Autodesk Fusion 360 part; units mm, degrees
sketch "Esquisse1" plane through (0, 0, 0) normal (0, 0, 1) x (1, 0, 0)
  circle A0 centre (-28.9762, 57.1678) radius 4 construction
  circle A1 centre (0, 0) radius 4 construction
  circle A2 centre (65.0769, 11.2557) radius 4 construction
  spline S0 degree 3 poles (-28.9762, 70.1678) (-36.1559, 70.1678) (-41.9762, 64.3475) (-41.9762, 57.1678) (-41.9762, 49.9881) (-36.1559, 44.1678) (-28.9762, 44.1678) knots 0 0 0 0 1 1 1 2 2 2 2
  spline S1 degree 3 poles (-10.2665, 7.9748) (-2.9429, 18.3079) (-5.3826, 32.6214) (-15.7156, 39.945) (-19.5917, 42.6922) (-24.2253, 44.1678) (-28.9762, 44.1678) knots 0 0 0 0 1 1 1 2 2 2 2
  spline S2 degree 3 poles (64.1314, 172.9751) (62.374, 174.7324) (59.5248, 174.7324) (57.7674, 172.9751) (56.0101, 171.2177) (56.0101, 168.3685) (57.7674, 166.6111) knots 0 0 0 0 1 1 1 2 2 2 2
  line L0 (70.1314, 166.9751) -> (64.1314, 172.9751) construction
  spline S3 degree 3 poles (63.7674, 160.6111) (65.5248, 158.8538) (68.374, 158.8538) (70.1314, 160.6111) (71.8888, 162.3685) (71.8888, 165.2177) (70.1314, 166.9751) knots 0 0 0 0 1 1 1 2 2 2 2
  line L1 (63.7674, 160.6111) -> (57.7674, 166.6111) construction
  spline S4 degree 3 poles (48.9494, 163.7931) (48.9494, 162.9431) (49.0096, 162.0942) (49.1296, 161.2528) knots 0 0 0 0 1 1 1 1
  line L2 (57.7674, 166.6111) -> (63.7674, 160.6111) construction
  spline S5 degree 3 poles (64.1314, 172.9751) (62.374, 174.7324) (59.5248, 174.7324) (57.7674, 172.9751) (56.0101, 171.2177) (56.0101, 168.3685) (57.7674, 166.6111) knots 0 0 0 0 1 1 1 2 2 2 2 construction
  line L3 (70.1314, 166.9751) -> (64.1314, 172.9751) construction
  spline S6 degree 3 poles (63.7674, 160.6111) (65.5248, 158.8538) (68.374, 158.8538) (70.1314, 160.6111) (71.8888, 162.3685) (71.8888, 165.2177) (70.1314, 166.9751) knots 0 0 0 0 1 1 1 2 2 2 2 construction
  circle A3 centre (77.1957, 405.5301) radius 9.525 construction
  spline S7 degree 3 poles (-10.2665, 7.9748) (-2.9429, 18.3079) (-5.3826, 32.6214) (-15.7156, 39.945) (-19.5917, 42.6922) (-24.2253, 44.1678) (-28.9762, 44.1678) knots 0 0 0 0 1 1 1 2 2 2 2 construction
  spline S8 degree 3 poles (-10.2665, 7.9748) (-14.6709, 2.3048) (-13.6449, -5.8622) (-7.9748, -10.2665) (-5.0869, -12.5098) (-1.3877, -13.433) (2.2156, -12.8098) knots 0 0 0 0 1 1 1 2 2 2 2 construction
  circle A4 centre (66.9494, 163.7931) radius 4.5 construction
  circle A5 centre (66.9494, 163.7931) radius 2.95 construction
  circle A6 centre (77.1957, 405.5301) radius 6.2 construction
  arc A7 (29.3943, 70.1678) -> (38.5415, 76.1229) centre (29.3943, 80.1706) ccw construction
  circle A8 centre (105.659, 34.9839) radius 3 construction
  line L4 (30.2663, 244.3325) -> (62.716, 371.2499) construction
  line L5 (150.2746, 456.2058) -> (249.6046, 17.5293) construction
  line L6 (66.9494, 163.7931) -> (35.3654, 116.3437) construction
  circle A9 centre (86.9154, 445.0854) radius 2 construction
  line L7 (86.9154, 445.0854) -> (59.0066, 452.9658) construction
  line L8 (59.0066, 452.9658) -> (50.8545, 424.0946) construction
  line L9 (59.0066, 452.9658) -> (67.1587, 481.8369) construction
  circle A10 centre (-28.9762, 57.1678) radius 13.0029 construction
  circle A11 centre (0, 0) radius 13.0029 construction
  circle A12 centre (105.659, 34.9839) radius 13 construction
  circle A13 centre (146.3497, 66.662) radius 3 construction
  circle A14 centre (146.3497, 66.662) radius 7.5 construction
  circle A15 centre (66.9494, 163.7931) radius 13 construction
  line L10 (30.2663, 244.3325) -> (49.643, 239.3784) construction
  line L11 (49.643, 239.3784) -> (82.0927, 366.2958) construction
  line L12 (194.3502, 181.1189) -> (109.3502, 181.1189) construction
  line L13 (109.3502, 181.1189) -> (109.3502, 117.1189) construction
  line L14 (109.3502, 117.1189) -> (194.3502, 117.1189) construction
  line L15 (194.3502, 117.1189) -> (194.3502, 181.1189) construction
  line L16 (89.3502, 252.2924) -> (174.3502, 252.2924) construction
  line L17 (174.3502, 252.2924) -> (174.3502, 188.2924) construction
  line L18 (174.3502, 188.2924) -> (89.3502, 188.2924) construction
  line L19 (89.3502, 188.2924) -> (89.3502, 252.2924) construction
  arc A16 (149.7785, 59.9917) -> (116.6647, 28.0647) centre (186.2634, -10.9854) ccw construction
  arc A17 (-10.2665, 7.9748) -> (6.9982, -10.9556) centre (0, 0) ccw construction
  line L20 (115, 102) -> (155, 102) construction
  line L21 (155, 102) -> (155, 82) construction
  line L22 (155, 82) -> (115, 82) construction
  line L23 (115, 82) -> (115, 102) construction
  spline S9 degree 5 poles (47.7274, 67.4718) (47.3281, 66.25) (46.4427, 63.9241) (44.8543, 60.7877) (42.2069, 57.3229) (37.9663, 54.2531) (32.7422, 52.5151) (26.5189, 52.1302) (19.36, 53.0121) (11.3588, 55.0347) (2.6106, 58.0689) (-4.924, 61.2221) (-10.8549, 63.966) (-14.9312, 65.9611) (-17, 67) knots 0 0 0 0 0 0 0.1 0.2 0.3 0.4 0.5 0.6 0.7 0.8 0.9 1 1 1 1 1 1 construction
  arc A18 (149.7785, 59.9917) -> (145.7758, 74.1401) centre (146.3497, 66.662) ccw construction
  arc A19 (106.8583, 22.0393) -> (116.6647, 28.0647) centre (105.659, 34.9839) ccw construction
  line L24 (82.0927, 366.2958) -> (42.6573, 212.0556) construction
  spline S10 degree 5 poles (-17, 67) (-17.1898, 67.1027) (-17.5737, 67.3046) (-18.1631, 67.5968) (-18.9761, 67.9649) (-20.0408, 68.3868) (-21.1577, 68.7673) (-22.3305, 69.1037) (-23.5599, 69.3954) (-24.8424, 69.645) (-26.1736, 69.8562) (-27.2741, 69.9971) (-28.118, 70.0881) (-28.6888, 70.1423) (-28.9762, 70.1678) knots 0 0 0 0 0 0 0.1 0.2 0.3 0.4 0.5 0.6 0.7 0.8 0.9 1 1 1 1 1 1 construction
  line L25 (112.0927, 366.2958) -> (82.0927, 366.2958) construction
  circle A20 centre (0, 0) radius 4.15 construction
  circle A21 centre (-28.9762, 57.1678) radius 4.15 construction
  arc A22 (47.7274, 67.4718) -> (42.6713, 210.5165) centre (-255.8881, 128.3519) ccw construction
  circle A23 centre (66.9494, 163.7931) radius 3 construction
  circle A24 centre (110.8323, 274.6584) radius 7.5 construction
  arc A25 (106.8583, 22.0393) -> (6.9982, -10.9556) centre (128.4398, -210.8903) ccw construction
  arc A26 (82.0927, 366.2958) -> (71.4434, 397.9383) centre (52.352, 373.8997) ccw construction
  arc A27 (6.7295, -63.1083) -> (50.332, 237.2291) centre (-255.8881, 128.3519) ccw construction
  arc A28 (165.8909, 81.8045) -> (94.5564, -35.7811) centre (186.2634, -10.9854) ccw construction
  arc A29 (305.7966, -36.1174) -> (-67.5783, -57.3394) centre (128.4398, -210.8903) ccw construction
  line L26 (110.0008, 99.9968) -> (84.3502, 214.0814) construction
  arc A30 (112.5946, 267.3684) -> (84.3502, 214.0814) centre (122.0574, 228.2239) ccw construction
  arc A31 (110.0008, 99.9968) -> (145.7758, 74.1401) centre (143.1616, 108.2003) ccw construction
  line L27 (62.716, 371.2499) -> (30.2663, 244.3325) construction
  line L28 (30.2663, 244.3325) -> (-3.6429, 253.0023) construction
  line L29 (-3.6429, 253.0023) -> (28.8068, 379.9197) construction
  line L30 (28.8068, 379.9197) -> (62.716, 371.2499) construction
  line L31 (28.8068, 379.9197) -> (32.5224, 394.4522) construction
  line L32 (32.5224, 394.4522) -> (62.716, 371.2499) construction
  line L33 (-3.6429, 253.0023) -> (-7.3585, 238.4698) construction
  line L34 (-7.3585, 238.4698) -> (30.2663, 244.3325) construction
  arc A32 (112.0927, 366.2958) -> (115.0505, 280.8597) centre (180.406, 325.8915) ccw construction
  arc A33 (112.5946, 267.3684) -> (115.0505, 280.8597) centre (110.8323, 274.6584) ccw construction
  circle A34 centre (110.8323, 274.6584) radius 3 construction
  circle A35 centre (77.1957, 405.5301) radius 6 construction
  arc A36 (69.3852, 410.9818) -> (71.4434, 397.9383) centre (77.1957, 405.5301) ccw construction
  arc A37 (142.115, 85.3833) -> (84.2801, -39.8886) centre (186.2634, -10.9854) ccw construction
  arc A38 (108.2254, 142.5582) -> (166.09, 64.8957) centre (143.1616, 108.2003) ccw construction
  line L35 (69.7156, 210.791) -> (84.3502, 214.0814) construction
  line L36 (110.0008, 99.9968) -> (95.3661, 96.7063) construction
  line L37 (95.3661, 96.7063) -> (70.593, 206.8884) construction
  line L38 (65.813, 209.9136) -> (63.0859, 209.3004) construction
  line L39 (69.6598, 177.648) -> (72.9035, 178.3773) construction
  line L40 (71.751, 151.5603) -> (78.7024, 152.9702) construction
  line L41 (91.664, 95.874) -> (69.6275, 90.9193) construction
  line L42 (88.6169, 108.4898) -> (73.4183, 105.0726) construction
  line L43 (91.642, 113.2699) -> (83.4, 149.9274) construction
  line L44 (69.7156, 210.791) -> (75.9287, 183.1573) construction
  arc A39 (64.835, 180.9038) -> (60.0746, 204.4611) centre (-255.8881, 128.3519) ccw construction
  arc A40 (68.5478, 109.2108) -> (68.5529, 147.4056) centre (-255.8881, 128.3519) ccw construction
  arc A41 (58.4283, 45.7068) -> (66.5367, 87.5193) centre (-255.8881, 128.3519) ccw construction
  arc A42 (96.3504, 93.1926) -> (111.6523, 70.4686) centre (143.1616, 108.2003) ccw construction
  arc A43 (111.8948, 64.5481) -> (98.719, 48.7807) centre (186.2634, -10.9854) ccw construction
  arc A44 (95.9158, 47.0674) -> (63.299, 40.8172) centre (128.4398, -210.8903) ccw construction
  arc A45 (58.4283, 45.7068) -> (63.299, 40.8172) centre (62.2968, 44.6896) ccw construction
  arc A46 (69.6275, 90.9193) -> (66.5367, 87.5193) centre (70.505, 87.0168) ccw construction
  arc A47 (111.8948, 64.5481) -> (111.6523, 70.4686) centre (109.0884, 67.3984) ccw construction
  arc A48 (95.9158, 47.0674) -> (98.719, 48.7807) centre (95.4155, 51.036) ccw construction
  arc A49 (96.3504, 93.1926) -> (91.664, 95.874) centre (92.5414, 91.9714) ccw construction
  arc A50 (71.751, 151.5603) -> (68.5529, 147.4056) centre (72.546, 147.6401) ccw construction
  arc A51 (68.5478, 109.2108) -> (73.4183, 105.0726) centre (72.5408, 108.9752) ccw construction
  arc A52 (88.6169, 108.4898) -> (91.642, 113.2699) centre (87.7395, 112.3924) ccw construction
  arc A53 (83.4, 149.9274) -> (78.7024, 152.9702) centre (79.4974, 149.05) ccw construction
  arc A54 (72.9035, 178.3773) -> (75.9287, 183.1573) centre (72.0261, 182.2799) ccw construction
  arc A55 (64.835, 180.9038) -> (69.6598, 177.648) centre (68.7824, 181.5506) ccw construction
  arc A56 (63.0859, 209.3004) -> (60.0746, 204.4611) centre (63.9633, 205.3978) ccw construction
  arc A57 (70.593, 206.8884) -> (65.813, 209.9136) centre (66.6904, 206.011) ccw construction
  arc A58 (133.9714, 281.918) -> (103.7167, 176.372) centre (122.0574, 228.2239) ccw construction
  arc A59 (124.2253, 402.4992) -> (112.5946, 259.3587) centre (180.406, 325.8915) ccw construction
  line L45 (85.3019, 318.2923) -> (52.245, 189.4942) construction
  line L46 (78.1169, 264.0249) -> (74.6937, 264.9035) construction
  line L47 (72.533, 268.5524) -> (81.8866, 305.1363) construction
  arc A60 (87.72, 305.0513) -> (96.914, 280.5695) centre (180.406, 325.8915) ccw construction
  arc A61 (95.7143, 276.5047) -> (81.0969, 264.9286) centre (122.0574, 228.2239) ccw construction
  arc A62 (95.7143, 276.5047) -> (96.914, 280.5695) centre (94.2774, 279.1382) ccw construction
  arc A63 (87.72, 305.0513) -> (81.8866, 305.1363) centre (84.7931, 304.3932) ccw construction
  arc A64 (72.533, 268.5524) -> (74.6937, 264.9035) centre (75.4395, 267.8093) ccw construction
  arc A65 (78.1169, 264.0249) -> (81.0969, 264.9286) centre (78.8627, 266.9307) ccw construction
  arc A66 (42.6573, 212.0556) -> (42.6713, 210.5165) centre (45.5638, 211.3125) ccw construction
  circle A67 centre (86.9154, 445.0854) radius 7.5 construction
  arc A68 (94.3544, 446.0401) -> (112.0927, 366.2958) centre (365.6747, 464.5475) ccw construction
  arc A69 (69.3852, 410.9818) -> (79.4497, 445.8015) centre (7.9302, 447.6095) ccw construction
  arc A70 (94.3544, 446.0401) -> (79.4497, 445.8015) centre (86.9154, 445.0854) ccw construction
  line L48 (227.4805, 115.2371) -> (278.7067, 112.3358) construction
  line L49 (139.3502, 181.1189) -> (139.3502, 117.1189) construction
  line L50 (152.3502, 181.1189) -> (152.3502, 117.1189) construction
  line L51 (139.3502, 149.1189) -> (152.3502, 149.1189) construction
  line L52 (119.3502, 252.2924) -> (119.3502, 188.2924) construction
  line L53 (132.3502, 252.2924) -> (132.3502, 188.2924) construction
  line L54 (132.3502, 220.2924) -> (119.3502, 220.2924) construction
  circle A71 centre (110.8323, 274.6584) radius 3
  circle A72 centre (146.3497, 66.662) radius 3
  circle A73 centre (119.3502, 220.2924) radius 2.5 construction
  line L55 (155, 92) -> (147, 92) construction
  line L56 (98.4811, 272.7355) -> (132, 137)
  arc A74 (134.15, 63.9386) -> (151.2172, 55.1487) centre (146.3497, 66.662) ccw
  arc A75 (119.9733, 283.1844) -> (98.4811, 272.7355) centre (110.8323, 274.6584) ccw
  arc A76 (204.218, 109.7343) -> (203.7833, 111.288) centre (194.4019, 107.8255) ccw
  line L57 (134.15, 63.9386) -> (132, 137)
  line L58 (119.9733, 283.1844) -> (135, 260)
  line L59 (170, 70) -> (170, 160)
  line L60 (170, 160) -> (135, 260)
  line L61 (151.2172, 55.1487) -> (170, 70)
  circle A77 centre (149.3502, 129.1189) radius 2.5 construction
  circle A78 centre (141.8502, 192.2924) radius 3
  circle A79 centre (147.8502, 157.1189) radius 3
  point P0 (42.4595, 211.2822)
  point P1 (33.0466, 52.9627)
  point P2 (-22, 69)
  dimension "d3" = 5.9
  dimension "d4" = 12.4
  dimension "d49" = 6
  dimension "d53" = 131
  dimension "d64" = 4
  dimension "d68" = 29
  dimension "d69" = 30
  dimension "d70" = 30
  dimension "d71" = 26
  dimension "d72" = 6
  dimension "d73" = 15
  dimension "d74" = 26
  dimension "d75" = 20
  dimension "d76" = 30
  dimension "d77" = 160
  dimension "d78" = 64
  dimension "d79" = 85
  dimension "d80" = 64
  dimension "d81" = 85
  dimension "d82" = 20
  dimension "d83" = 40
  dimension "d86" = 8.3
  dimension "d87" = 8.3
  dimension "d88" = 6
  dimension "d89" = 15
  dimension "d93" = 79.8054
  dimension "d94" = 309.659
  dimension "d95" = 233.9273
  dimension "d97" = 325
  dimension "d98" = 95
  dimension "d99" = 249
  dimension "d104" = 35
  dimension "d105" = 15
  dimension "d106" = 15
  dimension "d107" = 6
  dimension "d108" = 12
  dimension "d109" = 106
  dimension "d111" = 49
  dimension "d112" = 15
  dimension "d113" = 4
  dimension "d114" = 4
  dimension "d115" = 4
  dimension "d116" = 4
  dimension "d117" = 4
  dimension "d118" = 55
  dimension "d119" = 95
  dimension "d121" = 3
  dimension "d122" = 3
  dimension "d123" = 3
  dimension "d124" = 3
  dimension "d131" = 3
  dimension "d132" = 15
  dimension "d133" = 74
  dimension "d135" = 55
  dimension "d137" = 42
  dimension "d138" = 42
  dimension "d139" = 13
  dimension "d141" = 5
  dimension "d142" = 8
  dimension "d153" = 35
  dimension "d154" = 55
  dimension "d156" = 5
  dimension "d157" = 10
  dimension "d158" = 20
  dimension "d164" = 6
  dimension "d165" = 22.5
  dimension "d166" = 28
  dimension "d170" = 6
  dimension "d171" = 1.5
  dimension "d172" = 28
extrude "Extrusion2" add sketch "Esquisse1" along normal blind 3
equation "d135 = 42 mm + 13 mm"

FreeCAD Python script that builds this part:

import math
import FreeCAD as App
import Part
import Sketcher
Q = App.Units.Quantity

doc = App.newDocument("Part")
body = doc.addObject("PartDesign::Body", "Body")

sketch1 = doc.addObject("Sketcher::SketchObject", "Sketch")
body.addObject(sketch1)
sketch1.AttachmentSupport = (doc.XY_Plane, [""])
sketch1.MapMode = "FlatFace"
sketch1.addGeometry(Part.ArcOfCircle(Part.Circle(App.Vector(110.8, 274.7, 0), App.Vector(0, 0, 1), 12.5), math.radians(43), math.radians(189)), False)
sketch1.addGeometry(Part.LineSegment(App.Vector(98.5, 272.7, 0), App.Vector(132, 137, 0)), False)
sketch1.addGeometry(Part.LineSegment(App.Vector(132, 137, 0), App.Vector(134.2, 63.9, 0)), False)
sketch1.addGeometry(Part.ArcOfCircle(Part.Circle(App.Vector(146.3, 66.7, 0), App.Vector(0, 0, 1), 12.5), math.radians(-167), math.radians(-67)), False)
sketch1.addGeometry(Part.LineSegment(App.Vector(151.2, 55.1, 0), App.Vector(170, 70, 0)), False)
sketch1.addGeometry(Part.LineSegment(App.Vector(170, 70, 0), App.Vector(170, 160, 0)), False)
sketch1.addGeometry(Part.LineSegment(App.Vector(170, 160, 0), App.Vector(135, 260, 0)), False)
sketch1.addGeometry(Part.LineSegment(App.Vector(135, 260, 0), App.Vector(120, 283.2, 0)), False)
sketch1.addGeometry(Part.Circle(App.Vector(146.3, 66.7, 0), App.Vector(0, 0, 1), 3), False)
sketch1.addGeometry(Part.Circle(App.Vector(147.9, 157.1, 0), App.Vector(0, 0, 1), 3), False)
sketch1.addGeometry(Part.Circle(App.Vector(110.8, 274.7, 0), App.Vector(0, 0, 1), 3), False)
sketch1.addGeometry(Part.Circle(App.Vector(141.9, 192.3, 0), App.Vector(0, 0, 1), 3), False)
sketch1.addConstraint(Sketcher.Constraint("Coincident", 0, 2, 1, 1))
sketch1.addConstraint(Sketcher.Constraint("Coincident", 1, 2, 2, 1))
sketch1.addConstraint(Sketcher.Constraint("Coincident", 2, 2, 3, 1))
sketch1.addConstraint(Sketcher.Constraint("Coincident", 3, 2, 4, 1))
sketch1.addConstraint(Sketcher.Constraint("Coincident", 4, 2, 5, 1))
sketch1.addConstraint(Sketcher.Constraint("Coincident", 5, 2, 6, 1))
sketch1.addConstraint(Sketcher.Constraint("Coincident", 6, 2, 7, 1))
sketch1.addConstraint(Sketcher.Constraint("Coincident", 7, 2, 0, 1))
sketch1.addConstraint(Sketcher.Constraint("Vertical", 5))
sketch1.addConstraint(Sketcher.Constraint("Coincident", 8, 3, 3, 3))
sketch1.addConstraint(Sketcher.Constraint("Coincident", 10, 3, 0, 3))
sketch1.addConstraint(Sketcher.Constraint("Equal", 0, 3))
sketch1.addConstraint(Sketcher.Constraint("Equal", 8, 9))
sketch1.addConstraint(Sketcher.Constraint("Equal", 9, 10))
sketch1.addConstraint(Sketcher.Constraint("Equal", 10, 11))
sketch1.addConstraint(Sketcher.Constraint("Diameter", 8, Q("6 mm")))
sketch1.addConstraint(Sketcher.Constraint("DistanceY", -1, 1, 5, 2, Q("160 mm")))
sketch1.addConstraint(Sketcher.Constraint("DistanceX", 11, 3, 9, 3, Q("6 mm")))
sketch1.addConstraint(Sketcher.Constraint("Radius", 0, Q("12.5 mm")))
sketch1.addConstraint(Sketcher.Constraint("DistanceY", 5, 1, 5, 2, Q("90 mm")))
sketch1.addConstraint(Sketcher.Constraint("DistanceX", -1, 1, 1, 2, Q("132 mm")))
sketch1.addConstraint(Sketcher.Constraint("DistanceY", -1, 1, 1, 2, Q("137 mm")))
sketch1.addConstraint(Sketcher.Constraint("DistanceX", -1, 1, 4, 2, Q("170 mm")))
sketch1.addConstraint(Sketcher.Constraint("DistanceX", -1, 1, 6, 2, Q("135 mm")))
sketch1.addConstraint(Sketcher.Constraint("DistanceY", -1, 1, 6, 2, Q("260 mm")))
sketch1.addConstraint(Sketcher.Constraint("Angle", 7, Q("122.9488 deg")))
sketch1.addConstraint(Sketcher.Constraint("DistanceX", 3, 3, 9, 3, Q("1.5005 mm")))
sketch1.addConstraint(Sketcher.Constraint("DistanceX", -1, 1, 2, 2, Q("134.15 mm")))
sketch1.addConstraint(Sketcher.Constraint("DistanceY", 3, 2, 2, 2, Q("8.79 mm")))
sketch1.addConstraint(Sketcher.Constraint("Distance", 1, Q("139.813 mm")))
sketch1.addConstraint(Sketcher.Constraint("Distance", 2, Q("73.093 mm")))
sketch1.addConstraint(Sketcher.Constraint("DistanceY", -1, 1, 3, 3, Q("66.662 mm")))
sketch1.addConstraint(Sketcher.Constraint("DistanceY", -1, 1, 9, 3, Q("157.119 mm")))
sketch1.addConstraint(Sketcher.Constraint("DistanceX", -1, 1, 0, 2, Q("98.481 mm")))
sketch1.addConstraint(Sketcher.Constraint("DistanceX", 0, 3, 9, 3, Q("37.018 mm")))
sketch1.addConstraint(Sketcher.Constraint("DistanceY", 11, 3, 0, 3, Q("82.366 mm")))
pad1 = doc.addObject("PartDesign::Pad", "Pad")
body.addObject(pad1)
pad1.Profile = sketch1
pad1.Length = 3

doc.recompute()
